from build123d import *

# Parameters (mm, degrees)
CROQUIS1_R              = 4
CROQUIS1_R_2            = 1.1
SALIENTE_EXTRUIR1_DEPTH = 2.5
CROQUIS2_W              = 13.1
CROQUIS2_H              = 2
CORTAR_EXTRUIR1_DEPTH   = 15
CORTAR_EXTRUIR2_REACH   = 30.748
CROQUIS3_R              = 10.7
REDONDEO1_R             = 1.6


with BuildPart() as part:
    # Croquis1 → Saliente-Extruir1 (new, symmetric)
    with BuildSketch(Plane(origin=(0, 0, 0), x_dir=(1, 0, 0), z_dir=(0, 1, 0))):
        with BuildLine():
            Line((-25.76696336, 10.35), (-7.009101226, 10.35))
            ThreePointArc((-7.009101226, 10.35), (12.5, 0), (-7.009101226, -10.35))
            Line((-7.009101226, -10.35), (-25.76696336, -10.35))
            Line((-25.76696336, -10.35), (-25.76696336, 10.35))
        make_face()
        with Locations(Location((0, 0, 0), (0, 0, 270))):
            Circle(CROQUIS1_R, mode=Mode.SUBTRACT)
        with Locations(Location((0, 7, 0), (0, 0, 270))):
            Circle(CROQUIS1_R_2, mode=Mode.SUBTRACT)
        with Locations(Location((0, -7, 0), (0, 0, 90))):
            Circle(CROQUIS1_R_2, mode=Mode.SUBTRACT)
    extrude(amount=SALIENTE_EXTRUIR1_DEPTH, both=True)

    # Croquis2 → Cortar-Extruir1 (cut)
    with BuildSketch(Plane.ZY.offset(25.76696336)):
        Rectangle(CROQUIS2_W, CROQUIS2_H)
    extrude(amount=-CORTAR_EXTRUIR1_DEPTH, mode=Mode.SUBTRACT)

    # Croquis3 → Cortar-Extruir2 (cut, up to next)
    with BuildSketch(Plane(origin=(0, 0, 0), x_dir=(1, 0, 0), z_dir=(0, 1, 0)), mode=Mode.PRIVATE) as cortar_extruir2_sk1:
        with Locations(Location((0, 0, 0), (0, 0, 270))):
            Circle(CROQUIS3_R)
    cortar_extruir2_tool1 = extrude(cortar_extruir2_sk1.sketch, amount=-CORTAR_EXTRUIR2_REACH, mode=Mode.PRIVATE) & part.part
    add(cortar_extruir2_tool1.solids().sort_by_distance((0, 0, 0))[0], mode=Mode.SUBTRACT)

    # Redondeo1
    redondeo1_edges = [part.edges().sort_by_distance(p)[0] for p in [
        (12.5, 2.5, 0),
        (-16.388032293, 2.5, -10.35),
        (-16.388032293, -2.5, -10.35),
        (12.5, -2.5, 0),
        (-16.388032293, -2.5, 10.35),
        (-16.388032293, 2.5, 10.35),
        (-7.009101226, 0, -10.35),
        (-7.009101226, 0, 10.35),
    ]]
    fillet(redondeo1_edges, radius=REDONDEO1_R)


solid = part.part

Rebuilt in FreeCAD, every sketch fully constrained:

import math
import FreeCAD as App
import Part
import Sketcher
Q = App.Units.Quantity


def edges_at(feature, points):
    """Names of the edges that pass closest to the given points."""
    edges = feature.Shape.Edges
    near = lambda p: min(range(len(edges)), key=lambda i: edges[i].distToShape(Part.Vertex(*p))[0])
    return sorted({f"Edge{near(p) + 1}" for p in points})

doc = App.newDocument("Part")
body = doc.addObject("PartDesign::Body", "Body")

# Sketch on XZ plane
sketch1 = body.newObject("Sketcher::SketchObject", "Sketch")
sketch1.AttachmentSupport = (doc.getObject("XZ_Plane"), [""])
sketch1.MapMode = "FlatFace"
sketch1.addGeometry([
    Part.LineSegment(App.Vector(-7, -10.3, 0), App.Vector(-25.8, -10.3, 0)),  # 0
    Part.LineSegment(App.Vector(-25.8, -10.3, 0), App.Vector(-25.8, 10.3, 0)),  # 1
    Part.LineSegment(App.Vector(-25.8, 10.3, 0), App.Vector(-7, 10.3, 0)),  # 2
    Part.ArcOfCircle(Part.Circle(App.Vector(0, 0, 0), App.Vector(0, 0, 1), 12.5), math.radians(-124), math.radians(124)),  # 3
    Part.Circle(App.Vector(0, 7, 0), App.Vector(0, 0, 1), 1.1),  # 4
    Part.Circle(App.Vector(0, 0, 0), App.Vector(0, 0, 1), 4),  # 5
    Part.Circle(App.Vector(0, -7, 0), App.Vector(0, 0, 1), 1.1),  # 6
], False)
sketch1.addConstraint([
    Sketcher.Constraint("Coincident", 0, 2, 1, 1),
    Sketcher.Constraint("Coincident", 1, 2, 2, 1),
    Sketcher.Constraint("Coincident", 2, 2, 3, 2),
    Sketcher.Constraint("Coincident", 3, 1, 0, 1),
    Sketcher.Constraint("Horizontal", 0),
    Sketcher.Constraint("Vertical", 1),
    Sketcher.Constraint("Horizontal", 2),
    Sketcher.Constraint("Coincident", 3, 3, -1, 1),
    Sketcher.Constraint("Coincident", 5, 3, -1, 1),
    Sketcher.Constraint("Equal", 4, 6),
    Sketcher.Constraint("Symmetric", 4, 3, 6, 3, -1, 1),
    Sketcher.Constraint("PointOnObject", 4, 3, -2),
    Sketcher.Constraint("Vertical", 2, 2, 3, 1),
    Sketcher.Constraint("Diameter", 5, Q("8 mm")),
    Sketcher.Constraint("Diameter", 4, Q("2.2 mm")),
    Sketcher.Constraint("Radius", 3, Q("12.5 mm")),
    Sketcher.Constraint("DistanceY", 1, 1, 1, 2, Q("20.7 mm")),
    Sketcher.Constraint("DistanceY", -1, 1, 4, 3, Q("7 mm")),
    Sketcher.Constraint("DistanceX", 0, 2, 0, 1, Q("18.757862 mm")),
])
pad1 = body.newObject("PartDesign::Pad", "Pad")
pad1.Profile = sketch1
pad1.Length = 5
pad1.Midplane = True

# Sketch on YZ plane
sketch2 = body.newObject("Sketcher::SketchObject", "Sketch001")
sketch2.AttachmentSupport = (doc.getObject("YZ_Plane"), [""])
sketch2.MapMode = "FlatFace"
sketch2.AttachmentOffset = App.Placement(App.Vector(0, 0, -25.766963), App.Rotation())
sketch2.addGeometry([
    Part.LineSegment(App.Vector(1, -6.5, 0), App.Vector(-1, -6.5, 0)),
    Part.LineSegment(App.Vector(-1, -6.5, 0), App.Vector(-1, 6.5, 0)),
    Part.LineSegment(App.Vector(-1, 6.5, 0), App.Vector(1, 6.5, 0)),
    Part.LineSegment(App.Vector(1, 6.5, 0), App.Vector(1, -6.5, 0)),
], False)
sketch2.addConstraint([
    Sketcher.Constraint("Coincident", 0, 2, 1, 1),
    Sketcher.Constraint("Coincident", 1, 2, 2, 1),
    Sketcher.Constraint("Coincident", 2, 2, 3, 1),
    Sketcher.Constraint("Coincident", 3, 2, 0, 1),
    Sketcher.Constraint("Horizontal", 0),
    Sketcher.Constraint("Vertical", 1),
    Sketcher.Constraint("Horizontal", 2),
    Sketcher.Constraint("Vertical", 3),
    Sketcher.Constraint("Symmetric", 0, 2, 2, 2, -1, 1),
    Sketcher.Constraint("DistanceX", 0, 2, 0, 1, Q("2 mm")),
    Sketcher.Constraint("DistanceY", 1, 1, 1, 2, Q("13.1 mm")),
])
pocket1 = body.newObject("PartDesign::Pocket", "Pocket")
pocket1.Profile = sketch2
pocket1.Length = 15
pocket1.Reversed = True

# Sketch on XZ plane
sketch3 = body.newObject("Sketcher::SketchObject", "Sketch002")
sketch3.AttachmentSupport = (doc.getObject("XZ_Plane"), [""])
sketch3.MapMode = "FlatFace"
sketch3.addGeometry(Part.Circle(App.Vector(0, 0, 0), App.Vector(0, 0, 1), 11), False)
sketch3.addConstraint([
    Sketcher.Constraint("Coincident", 0, 3, -1, 1),
    Sketcher.Constraint("Diameter", 0, Q("21.4 mm")),
])
pocket2 = body.newObject("PartDesign::Pocket", "Pocket001")
pocket2.Profile = sketch3
pocket2.Length = 2.5
pocket2.Reversed = True
doc.recompute()

fillet = body.newObject("PartDesign::Fillet", "Fillet")
fillet.Base = (pocket2, edges_at(pocket2, [
    (12.5, 2.5, 0),
    (-16.388, 2.5, -10.35),
    (-16.388, -2.5, -10.35),
    (12.5, -2.5, 0),
    (-16.388, -2.5, 10.35),
    (-16.388, 2.5, 10.35),
    (-7.009, 0, -10.35),
    (-7.009, 0, 10.35),
]))
fillet.Radius = 1.6

doc.recompute()
